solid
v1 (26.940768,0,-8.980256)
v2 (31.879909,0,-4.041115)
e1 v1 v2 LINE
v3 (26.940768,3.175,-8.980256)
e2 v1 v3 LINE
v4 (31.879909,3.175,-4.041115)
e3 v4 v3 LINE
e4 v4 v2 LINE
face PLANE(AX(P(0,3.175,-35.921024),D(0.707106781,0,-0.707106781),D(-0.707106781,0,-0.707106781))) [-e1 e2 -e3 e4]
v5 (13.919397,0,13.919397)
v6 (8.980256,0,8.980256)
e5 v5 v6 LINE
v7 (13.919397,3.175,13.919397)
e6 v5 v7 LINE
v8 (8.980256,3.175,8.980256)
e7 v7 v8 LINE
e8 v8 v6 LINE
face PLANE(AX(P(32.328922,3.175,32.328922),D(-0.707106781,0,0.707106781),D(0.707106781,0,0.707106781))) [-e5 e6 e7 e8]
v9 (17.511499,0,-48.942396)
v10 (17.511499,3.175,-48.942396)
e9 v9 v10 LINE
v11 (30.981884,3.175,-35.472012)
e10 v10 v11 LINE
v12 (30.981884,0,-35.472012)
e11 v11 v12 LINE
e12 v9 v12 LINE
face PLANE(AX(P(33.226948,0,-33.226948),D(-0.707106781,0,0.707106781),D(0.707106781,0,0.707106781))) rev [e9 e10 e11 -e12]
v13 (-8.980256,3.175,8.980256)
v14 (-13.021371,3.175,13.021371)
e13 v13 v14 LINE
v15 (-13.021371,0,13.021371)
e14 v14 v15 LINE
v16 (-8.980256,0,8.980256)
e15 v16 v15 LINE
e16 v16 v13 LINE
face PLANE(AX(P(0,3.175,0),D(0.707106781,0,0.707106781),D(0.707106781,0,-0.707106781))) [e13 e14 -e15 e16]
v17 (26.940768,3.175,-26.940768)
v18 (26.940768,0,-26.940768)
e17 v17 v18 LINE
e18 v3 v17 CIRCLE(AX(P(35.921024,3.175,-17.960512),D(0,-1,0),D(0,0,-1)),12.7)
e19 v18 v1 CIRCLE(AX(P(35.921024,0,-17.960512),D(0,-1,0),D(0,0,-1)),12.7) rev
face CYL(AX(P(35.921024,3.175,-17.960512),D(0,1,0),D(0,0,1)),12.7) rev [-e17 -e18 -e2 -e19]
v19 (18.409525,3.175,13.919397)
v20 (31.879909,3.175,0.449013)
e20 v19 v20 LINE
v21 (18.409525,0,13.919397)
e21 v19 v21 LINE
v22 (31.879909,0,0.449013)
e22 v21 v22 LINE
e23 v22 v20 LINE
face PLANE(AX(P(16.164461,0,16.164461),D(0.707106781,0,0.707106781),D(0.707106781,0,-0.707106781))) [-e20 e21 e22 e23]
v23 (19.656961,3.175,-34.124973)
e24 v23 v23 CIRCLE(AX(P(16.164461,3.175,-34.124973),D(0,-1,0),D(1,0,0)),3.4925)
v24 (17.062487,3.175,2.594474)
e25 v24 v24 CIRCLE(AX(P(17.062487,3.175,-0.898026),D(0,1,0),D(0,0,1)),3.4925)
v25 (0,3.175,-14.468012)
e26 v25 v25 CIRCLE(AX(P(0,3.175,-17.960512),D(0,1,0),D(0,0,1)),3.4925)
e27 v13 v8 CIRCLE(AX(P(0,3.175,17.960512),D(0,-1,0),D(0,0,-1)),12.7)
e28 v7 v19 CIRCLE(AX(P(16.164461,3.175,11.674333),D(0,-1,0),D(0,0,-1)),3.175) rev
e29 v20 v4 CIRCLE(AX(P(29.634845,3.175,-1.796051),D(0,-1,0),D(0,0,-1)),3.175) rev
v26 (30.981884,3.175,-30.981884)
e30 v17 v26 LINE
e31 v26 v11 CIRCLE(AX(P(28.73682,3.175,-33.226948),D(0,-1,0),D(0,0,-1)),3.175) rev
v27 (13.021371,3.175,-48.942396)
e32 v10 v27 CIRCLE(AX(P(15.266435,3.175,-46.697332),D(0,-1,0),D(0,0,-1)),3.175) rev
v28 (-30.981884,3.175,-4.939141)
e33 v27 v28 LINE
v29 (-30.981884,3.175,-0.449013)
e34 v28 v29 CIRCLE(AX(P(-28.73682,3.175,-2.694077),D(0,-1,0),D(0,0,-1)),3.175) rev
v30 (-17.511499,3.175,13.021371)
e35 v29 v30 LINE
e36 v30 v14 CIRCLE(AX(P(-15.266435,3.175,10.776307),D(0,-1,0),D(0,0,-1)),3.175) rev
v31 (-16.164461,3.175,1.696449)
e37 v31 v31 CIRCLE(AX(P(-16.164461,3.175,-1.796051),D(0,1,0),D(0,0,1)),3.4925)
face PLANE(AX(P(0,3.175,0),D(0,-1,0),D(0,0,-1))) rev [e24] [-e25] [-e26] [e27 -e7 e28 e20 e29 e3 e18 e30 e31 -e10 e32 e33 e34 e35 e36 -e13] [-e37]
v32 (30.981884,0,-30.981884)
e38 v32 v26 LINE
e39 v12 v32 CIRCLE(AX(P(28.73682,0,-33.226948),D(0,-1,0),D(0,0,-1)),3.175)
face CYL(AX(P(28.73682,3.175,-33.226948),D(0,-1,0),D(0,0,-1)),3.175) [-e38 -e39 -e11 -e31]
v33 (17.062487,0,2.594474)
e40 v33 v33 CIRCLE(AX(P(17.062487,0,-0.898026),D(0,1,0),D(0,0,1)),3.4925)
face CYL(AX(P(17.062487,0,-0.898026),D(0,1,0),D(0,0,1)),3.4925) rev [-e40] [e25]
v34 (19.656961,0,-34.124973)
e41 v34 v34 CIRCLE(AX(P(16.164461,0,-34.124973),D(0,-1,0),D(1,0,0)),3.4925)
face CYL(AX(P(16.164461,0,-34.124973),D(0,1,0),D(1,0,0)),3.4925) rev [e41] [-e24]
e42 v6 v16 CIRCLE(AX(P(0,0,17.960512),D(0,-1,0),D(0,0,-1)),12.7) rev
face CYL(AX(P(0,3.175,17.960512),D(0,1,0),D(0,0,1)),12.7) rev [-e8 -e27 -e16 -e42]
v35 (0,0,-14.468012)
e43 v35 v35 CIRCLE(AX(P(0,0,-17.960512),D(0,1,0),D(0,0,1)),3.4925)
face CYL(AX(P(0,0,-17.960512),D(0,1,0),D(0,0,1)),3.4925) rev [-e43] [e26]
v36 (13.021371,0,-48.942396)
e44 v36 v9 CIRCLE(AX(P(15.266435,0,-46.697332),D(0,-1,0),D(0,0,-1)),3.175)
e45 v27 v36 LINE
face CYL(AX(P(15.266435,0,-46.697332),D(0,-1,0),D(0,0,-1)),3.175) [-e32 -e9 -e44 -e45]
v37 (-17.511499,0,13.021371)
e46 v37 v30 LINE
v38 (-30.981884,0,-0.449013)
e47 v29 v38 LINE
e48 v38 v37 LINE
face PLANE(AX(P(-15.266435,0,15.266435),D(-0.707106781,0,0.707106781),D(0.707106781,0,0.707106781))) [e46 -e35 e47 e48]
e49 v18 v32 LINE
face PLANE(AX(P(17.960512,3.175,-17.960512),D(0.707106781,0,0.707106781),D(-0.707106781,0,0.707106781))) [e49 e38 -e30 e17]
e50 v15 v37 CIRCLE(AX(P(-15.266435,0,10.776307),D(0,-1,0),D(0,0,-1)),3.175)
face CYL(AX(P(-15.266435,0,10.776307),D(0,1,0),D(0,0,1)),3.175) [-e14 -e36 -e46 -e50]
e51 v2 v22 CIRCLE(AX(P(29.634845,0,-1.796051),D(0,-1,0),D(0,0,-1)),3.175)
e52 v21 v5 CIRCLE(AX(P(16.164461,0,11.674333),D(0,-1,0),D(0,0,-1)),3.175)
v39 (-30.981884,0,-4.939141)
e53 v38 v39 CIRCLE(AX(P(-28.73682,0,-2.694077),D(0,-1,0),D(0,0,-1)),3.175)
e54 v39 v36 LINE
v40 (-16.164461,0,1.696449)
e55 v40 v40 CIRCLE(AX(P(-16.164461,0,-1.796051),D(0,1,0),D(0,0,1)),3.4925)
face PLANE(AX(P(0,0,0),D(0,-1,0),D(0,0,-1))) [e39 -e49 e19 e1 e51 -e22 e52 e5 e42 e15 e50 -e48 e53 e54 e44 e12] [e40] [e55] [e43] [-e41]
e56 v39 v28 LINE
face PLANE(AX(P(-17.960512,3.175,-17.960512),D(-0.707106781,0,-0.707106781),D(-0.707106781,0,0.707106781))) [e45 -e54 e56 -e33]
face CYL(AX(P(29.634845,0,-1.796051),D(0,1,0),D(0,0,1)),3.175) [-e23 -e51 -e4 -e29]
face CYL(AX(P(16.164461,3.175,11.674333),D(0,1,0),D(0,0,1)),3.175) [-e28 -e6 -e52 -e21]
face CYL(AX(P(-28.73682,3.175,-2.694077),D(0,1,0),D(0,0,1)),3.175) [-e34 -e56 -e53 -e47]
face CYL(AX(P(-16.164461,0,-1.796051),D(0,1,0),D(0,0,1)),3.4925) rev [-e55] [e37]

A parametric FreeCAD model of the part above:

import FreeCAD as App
import Part
import Sketcher

V = App.Vector
Q = App.Units.Quantity


def edges_at(feature, points):
    """Names of the edges that pass closest to the given points."""
    edges = feature.Shape.Edges
    near = lambda p: min(range(len(edges)), key=lambda i: edges[i].distToShape(Part.Vertex(*p))[0])
    return sorted({f"Edge{near(p) + 1}" for p in points})


def add_polygon(sketch, points):
    """Adds a closed chain of lines whose ends are joined by coincident constraints."""
    first, n = sketch.GeometryCount, len(points)
    for a, b in zip(points, points[1:] + points[:1]):
        sketch.addGeometry(Part.LineSegment(App.Vector(*a, 0), App.Vector(*b, 0)), False)
    for i in range(n):
        sketch.addConstraint(Sketcher.Constraint("Coincident", first + i, 2, first + (i + 1) % n, 1))

doc = App.newDocument("Part")
body = doc.addObject("PartDesign::Body", "Body")

sketch1 = body.newObject("Sketcher::SketchObject", "Sketch")
sketch1.AttachmentSupport = (doc.getObject("XZ_Plane"), [""])
sketch1.MapMode = "FlatFace"
add_polygon(sketch1, [(0, -35.921024), (-49.391409, 13.470384), (-31.430896, 31.430896), (0, 0), (32.328922, 32.328922), (50.289434, 14.36841)])
sketch1.addConstraint([
    Sketcher.Constraint("Coincident", 2, 2, -1, 1),
    Sketcher.Constraint("PointOnObject", 5, 2, -2),
    Sketcher.Constraint("Perpendicular", 0, 1),
    Sketcher.Constraint("Perpendicular", 1, 2),
    Sketcher.Constraint("Perpendicular", 2, 3),
    Sketcher.Constraint("Perpendicular", 3, 4),
    Sketcher.Constraint("Perpendicular", 4, 5),
    Sketcher.Constraint("Equal", 1, 4),
    Sketcher.Constraint("Distance", 1, Q("1 in")),
    Sketcher.Constraint("Distance", 3, Q("1.8 in")),
    Sketcher.Constraint("Distance", 0, Q("2.75 in")),
])
pad1 = body.newObject("PartDesign::Pad", "Pad")
pad1.Profile = sketch1
pad1.Length = Q("0.125 in")
pad1.Reversed = True

sketch2 = body.newObject("Sketcher::SketchObject", "Sketch001")
sketch2.AttachmentSupport = (doc.getObject("XZ_Plane"), [""])
sketch2.MapMode = "FlatFace"
sketch2.AttachmentOffset = App.Placement(V(0, 0, -0.125 * 25.4), App.Rotation())
sketch2.addGeometry(Part.Circle(V(-32.328922, 14.36841, 0), V(0, 0, 1), 3.4925), False)
sketch2.addConstraint([
    Sketcher.Constraint("Diameter", 0, Q("0.275 in")),
    Sketcher.Constraint("DistanceY", -1, 1, 0, 3, Q("14.36841 mm")),
    Sketcher.Constraint("DistanceX", 0, 3, -1, 1, Q("32.328922 mm")),
])
pocket1 = body.newObject("PartDesign::Pocket", "Pocket")
pocket1.Profile = sketch2
pocket1.Length = Q("0.125 in")
pocket1.Reversed = True
doc.recompute()

datumline = body.newObject("PartDesign::Line", "DatumLine")
datumline.Placement = App.Placement(V(0, 0, 0), App.Rotation(V(0, 0, 1), V(0.707106781, 0, -0.707106781)))
linearpattern = body.newObject("PartDesign::LinearPattern", "LinearPattern")
linearpattern.Originals = [pocket1]
linearpattern.Direction = (datumline, [""])
linearpattern.Mode = "offset"
linearpattern.Offset = Q("0.9 in")
linearpattern.Occurrences = 3
body.Tip = linearpattern

sketch3 = body.newObject("Sketcher::SketchObject", "Sketch002")
sketch3.AttachmentSupport = (doc.getObject("XZ_Plane"), [""])
sketch3.MapMode = "FlatFace"
sketch3.AttachmentOffset = App.Placement(V(0, 0, -0.125 * 25.4), App.Rotation())
sketch3.addGeometry(Part.Circle(V(33.226948, 15.266435, 0), V(0, 0, 1), 3.4925), False)
sketch3.addConstraint([
    Sketcher.Constraint("Diameter", 0, Q("0.275 in")),
    Sketcher.Constraint("DistanceX", -1, 1, 0, 3, Q("33.226948 mm")),
    Sketcher.Constraint("DistanceY", -1, 1, 0, 3, Q("15.266435 mm")),
])
pocket2 = body.newObject("PartDesign::Pocket", "Pocket001")
pocket2.Profile = sketch3
pocket2.Length = Q("0.125 in")
pocket2.Reversed = True
doc.recompute()

datumline2 = body.newObject("PartDesign::Line", "DatumLine001")
datumline2.Placement = App.Placement(V(0, 0, 0), App.Rotation(V(0, 0, 1), V(-0.707106781, 0, -0.707106781)))
linearpattern2 = body.newObject("PartDesign::LinearPattern", "LinearPattern001")
linearpattern2.Originals = [pocket2]
linearpattern2.Direction = (datumline2, [""])
linearpattern2.Mode = "offset"
linearpattern2.Offset = Q("0.9 in")
linearpattern2.Occurrences = 2
body.Tip = linearpattern2
body2 = doc.addObject("PartDesign::Body", "Body001")
doc.recompute()

body2.BaseFeature = body
doc.recompute()

mirroring = doc.addObject("Part::Mirroring", "Mirroring")
mirroring.Source = body
mirroring.Base = V(8.980256, 0, -8.980256)
mirroring.Normal = V(-0.707106781, 0, 0.707106781)
body3 = doc.addObject("PartDesign::Body", "Body002")
body3.BaseFeature = mirroring
boolean = body2.newObject("PartDesign::Boolean", "Boolean")
boolean.Type = "Fuse"
boolean.addObjects([body3])
doc.recompute()

sketch4 = body2.newObject("Sketcher::SketchObject", "Sketch003")
sketch4.AttachmentSupport = (doc.getObject("XZ_Plane001"), [""])
sketch4.MapMode = "FlatFace"
sketch4.AttachmentOffset = App.Placement(V(0, 0, -0.125 * 25.4), App.Rotation())
add_polygon(sketch4, [(-15.266435, 15.266435), (-33.226948, -2.694077), (-49.391409, 13.470384), (-31.430896, 31.430896)])
sketch4.addGeometry(Part.Circle(V(-32.328922, 14.36841, 0), V(0, 0, 1), 3.4925), False)
add_polygon(sketch4, [(33.226948, -33.226948), (49.391409, -49.391409), (31.430896, -67.351921), (15.266435, -51.18746)])
sketch4.addGeometry(Part.Circle(V(32.328922, -50.289434, 0), V(0, 0, 1), 3.4925), False)
add_polygon(sketch4, [(50.289434, 14.36841), (34.124973, -1.796051), (16.164461, 16.164461), (32.328922, 32.328922)])
sketch4.addGeometry(Part.Circle(V(33.226948, 15.266435, 0), V(0, 0, 1), 3.4925), False)
sketch4.addConstraint([
    Sketcher.Constraint("Equal", 4, 9),
    Sketcher.Constraint("Equal", 9, 14),
    Sketcher.Constraint("Perpendicular", 0, 1),
    Sketcher.Constraint("Perpendicular", 1, 2),
    Sketcher.Constraint("Perpendicular", 2, 3),
    Sketcher.Constraint("Parallel", 3, 5),
    Sketcher.Constraint("Perpendicular", 5, 6),
    Sketcher.Constraint("Perpendicular", 6, 7),
    Sketcher.Constraint("Perpendicular", 7, 8),
    Sketcher.Constraint("Parallel", 8, 10),
    Sketcher.Constraint("Perpendicular", 10, 11),
    Sketcher.Constraint("Perpendicular", 11, 12),
    Sketcher.Constraint("Perpendicular", 12, 13),
    Sketcher.Constraint("Horizontal", 14, 3, 3, 2),
    Sketcher.Constraint("Horizontal", 4, 3, 13, 2),
    Sketcher.Constraint("Vertical", 14, 3, 8, 2),
    Sketcher.Constraint("Vertical", 9, 3, 12, 2),
    Sketcher.Constraint("Equal", 3, 5),
    Sketcher.Constraint("Equal", 2, 6),
    Sketcher.Constraint("Equal", 7, 10),
    Sketcher.Constraint("Equal", 8, 11),
    Sketcher.Constraint("Distance", 0, Q("1 in")),
    Sketcher.Constraint("Diameter", 4, Q("0.275 in")),
    Sketcher.Constraint("Angle", 0, Q("-135 deg")),
    Sketcher.Constraint("Distance", 1, Q("0.9 in")),
    Sketcher.Constraint("DistanceY", -1, 1, 4, 3, Q("14.36841 mm")),
    Sketcher.Constraint("DistanceX", 1, 2, -1, 1, Q("49.391409 mm")),
    Sketcher.Constraint("DistanceX", -1, 1, 5, 2, Q("49.391409 mm")),
    Sketcher.Constraint("DistanceY", 5, 2, -1, 1, Q("49.391409 mm")),
    Sketcher.Constraint("DistanceX", -1, 1, 11, 2, Q("16.164461 mm")),
    Sketcher.Constraint("DistanceX", 4, 3, 14, 3, Q("65.55587 mm")),
    Sketcher.Constraint("DistanceY", 9, 3, 14, 3, Q("65.55587 mm")),
    Sketcher.Constraint("DistanceY", 5, 2, 0, 2, Q("46.697332 mm")),
])
pocket3 = body2.newObject("PartDesign::Pocket", "Pocket002")
pocket3.Profile = sketch4
pocket3.Length = 85.115332
pocket3.Reversed = True
doc.recompute()

fillet = body2.newObject("PartDesign::Fillet", "Fillet")
fillet.Base = (pocket3, edges_at(pocket3, [(0, 1.587, 0), (17.961, 1.587, -17.961)]))
fillet.Radius = Q("0.5 in")
doc.recompute()

fillet2 = body2.newObject("PartDesign::Fillet", "Fillet001")
fillet2.Base = (fillet, edges_at(fillet, [
    (-33.227, 1.587, -2.694),
    (-15.266, 1.587, 15.266),
    (15.266, 1.587, -51.187),
    (33.227, 1.587, -33.227),
    (16.164, 1.587, 16.164),
    (34.125, 1.587, -1.796),
]))
fillet2.Radius = Q("0.125 in")
mirroring.Visibility = False

doc.recompute()
